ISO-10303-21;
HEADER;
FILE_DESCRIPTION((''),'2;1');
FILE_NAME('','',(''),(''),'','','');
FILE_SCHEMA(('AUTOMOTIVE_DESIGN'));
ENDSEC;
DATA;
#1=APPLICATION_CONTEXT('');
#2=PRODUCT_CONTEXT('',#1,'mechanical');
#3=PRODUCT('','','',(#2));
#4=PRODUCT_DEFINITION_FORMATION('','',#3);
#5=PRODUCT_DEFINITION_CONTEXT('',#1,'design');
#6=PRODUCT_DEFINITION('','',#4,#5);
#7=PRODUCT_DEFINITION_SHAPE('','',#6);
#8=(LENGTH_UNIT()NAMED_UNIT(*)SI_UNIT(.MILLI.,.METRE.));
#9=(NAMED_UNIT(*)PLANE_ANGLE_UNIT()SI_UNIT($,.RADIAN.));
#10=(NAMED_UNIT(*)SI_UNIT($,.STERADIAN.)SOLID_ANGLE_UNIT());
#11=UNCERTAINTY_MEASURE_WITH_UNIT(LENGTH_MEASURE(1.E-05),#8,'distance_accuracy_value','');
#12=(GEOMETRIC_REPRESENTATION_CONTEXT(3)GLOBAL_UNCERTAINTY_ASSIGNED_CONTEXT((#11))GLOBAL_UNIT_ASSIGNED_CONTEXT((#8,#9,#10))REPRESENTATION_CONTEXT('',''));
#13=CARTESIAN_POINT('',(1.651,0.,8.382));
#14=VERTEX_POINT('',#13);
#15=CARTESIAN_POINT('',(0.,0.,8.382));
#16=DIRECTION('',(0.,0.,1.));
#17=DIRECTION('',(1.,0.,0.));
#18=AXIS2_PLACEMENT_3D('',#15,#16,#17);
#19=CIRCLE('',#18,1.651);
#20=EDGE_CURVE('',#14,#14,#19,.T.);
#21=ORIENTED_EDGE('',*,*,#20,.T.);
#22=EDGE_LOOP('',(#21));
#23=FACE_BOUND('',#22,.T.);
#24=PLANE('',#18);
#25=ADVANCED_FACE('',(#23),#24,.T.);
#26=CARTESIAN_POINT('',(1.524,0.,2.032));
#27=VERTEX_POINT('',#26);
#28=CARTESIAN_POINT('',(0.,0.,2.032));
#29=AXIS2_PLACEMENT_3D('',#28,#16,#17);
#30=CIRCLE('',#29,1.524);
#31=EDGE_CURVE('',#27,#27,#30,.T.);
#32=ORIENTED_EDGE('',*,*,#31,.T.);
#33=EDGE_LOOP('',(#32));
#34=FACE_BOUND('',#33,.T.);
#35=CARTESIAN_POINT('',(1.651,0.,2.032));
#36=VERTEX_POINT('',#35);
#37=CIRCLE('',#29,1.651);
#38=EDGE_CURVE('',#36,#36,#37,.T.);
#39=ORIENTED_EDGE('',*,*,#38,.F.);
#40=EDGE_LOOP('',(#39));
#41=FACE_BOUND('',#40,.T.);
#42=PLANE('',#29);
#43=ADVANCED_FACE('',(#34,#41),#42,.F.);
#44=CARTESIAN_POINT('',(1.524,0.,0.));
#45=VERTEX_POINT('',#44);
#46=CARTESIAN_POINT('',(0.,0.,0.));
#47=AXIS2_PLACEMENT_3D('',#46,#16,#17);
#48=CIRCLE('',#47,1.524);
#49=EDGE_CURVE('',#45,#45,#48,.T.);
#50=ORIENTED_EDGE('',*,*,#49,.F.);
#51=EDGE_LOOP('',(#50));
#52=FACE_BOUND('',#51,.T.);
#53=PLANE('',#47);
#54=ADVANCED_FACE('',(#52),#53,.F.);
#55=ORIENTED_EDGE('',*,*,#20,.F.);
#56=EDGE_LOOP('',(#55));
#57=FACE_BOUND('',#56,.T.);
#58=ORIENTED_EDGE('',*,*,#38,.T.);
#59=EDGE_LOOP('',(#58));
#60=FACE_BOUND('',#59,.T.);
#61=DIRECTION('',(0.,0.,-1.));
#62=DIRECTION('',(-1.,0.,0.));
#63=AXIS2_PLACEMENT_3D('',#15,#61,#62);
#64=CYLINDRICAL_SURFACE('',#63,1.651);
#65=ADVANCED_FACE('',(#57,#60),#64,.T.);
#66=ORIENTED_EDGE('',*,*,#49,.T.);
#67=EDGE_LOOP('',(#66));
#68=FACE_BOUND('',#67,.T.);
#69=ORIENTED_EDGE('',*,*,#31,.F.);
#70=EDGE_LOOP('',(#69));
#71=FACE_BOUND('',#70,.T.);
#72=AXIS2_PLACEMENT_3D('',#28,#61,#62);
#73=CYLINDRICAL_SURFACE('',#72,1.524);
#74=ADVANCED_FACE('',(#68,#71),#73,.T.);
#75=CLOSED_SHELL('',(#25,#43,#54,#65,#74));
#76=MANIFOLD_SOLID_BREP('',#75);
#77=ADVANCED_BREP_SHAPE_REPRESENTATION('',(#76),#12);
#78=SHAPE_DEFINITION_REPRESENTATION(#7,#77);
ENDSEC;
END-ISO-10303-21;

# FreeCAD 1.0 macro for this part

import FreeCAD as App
import Part
import Sketcher
Q = App.Units.Quantity

doc = App.newDocument("Part")
body = doc.addObject("PartDesign::Body", "Body")

# Sketch on XY plane
sketch1 = doc.addObject("Sketcher::SketchObject", "Sketch")
body.addObject(sketch1)
sketch1.AttachmentSupport = (doc.XY_Plane, [""])
sketch1.MapMode = "FlatFace"
sketch1.addGeometry(Part.Circle(App.Vector(0, 0, 0), App.Vector(0, 0, 1), 1.5), False)
sketch1.addConstraint([
    Sketcher.Constraint("Coincident", 0, 3, -1, 1),
    Sketcher.Constraint("Diameter", 0, Q("0.12 in")),
])
pad1 = doc.addObject("PartDesign::Pad", "Pad")
body.addObject(pad1)
pad1.Profile = sketch1
pad1.Length = Q("0.08 in")

# Sketch on XY plane
sketch2 = doc.addObject("Sketcher::SketchObject", "Sketch001")
body.addObject(sketch2)
sketch2.AttachmentSupport = (doc.XY_Plane, [""])
sketch2.MapMode = "FlatFace"
sketch2.AttachmentOffset = App.Placement(App.Vector(0, 0, 0.08 * 25.4), App.Rotation())
sketch2.addGeometry(Part.Circle(App.Vector(0, 0, 0), App.Vector(0, 0, 1), 1.7), False)
sketch2.addConstraint([
    Sketcher.Constraint("Coincident", 0, 3, -1, 1),
    Sketcher.Constraint("Diameter", 0, Q("0.13 in")),
])
pad2 = doc.addObject("PartDesign::Pad", "Pad001")
body.addObject(pad2)
pad2.Profile = sketch2
pad2.Length = Q("0.25 in")

doc.recompute()
